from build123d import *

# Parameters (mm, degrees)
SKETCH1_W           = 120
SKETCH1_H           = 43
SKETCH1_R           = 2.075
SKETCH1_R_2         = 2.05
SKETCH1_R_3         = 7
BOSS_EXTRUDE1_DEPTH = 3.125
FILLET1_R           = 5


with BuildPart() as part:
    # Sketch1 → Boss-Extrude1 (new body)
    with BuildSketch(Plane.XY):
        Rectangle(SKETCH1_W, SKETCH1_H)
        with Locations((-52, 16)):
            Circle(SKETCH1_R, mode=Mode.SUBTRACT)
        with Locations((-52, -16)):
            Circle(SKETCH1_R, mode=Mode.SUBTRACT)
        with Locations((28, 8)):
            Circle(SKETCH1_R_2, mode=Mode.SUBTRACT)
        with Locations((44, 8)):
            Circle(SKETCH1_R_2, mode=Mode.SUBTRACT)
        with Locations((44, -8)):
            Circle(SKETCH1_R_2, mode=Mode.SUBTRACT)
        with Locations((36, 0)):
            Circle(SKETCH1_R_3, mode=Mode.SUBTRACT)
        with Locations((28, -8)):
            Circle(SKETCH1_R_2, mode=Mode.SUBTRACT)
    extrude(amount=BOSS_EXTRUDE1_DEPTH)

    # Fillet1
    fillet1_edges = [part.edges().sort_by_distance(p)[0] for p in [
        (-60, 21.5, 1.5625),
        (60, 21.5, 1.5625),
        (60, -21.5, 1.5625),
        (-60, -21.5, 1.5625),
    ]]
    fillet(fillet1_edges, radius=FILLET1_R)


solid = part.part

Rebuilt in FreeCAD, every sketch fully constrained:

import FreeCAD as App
import Part
import Sketcher
Q = App.Units.Quantity


def edges_at(feature, points):
    """Names of the edges that pass closest to the given points."""
    edges = feature.Shape.Edges
    near = lambda p: min(range(len(edges)), key=lambda i: edges[i].distToShape(Part.Vertex(*p))[0])
    return sorted({f"Edge{near(p) + 1}" for p in points})


def add_polygon(sketch, points):
    """Adds a closed chain of lines whose ends are joined by coincident constraints."""
    first, n = sketch.GeometryCount, len(points)
    for a, b in zip(points, points[1:] + points[:1]):
        sketch.addGeometry(Part.LineSegment(App.Vector(*a, 0), App.Vector(*b, 0)), False)
    for i in range(n):
        sketch.addConstraint(Sketcher.Constraint("Coincident", first + i, 2, first + (i + 1) % n, 1))

doc = App.newDocument("Part")
body = doc.addObject("PartDesign::Body", "Body")

sketch1 = body.newObject("Sketcher::SketchObject", "Sketch")
sketch1.AttachmentSupport = (doc.getObject("XY_Plane"), [""])
sketch1.MapMode = "FlatFace"
add_polygon(sketch1, [(-60, 21.5), (-60, -21.5), (60, -21.5), (60, 21.5)])
sketch1.addGeometry(Part.Circle(App.Vector(-52, -16, 0), App.Vector(0, 0, 1), 2.1), False)
sketch1.addGeometry(Part.Circle(App.Vector(28, -8, 0), App.Vector(0, 0, 1), 2), False)
sketch1.addGeometry(Part.Circle(App.Vector(44, -8, 0), App.Vector(0, 0, 1), 2), False)
sketch1.addGeometry(Part.Circle(App.Vector(-52, 16, 0), App.Vector(0, 0, 1), 2.1), False)
sketch1.addGeometry(Part.Circle(App.Vector(36, 0, 0), App.Vector(0, 0, 1), 7), False)
sketch1.addGeometry(Part.Circle(App.Vector(28, 8, 0), App.Vector(0, 0, 1), 2), False)
sketch1.addGeometry(Part.Circle(App.Vector(44, 8, 0), App.Vector(0, 0, 1), 2), False)
sketch1.addConstraint([
    Sketcher.Constraint("Vertical", 0),
    Sketcher.Constraint("Horizontal", 1),
    Sketcher.Constraint("Vertical", 2),
    Sketcher.Constraint("Horizontal", 3),
    Sketcher.Constraint("Equal", 5, 6),
    Sketcher.Constraint("Equal", 4, 7),
    Sketcher.Constraint("Equal", 6, 9),
    Sketcher.Constraint("Equal", 9, 10),
    Sketcher.Constraint("Symmetric", 0, 2, 2, 2, -1, 1),
    Sketcher.Constraint("Symmetric", 4, 3, 7, 3, -1),
    Sketcher.Constraint("Symmetric", 5, 3, 9, 3, -1),
    Sketcher.Constraint("Symmetric", 6, 3, 10, 3, -1),
    Sketcher.Constraint("PointOnObject", 8, 3, -1),
    Sketcher.Constraint("Horizontal", 5, 3, 6, 3),
    Sketcher.Constraint("Diameter", 8, Q("14 mm")),
    Sketcher.Constraint("Diameter", 5, Q("4.1 mm")),
    Sketcher.Constraint("Diameter", 4, Q("4.15 mm")),
    Sketcher.Constraint("DistanceX", 1, 1, 1, 2, Q("120 mm")),
    Sketcher.Constraint("DistanceY", 0, 2, 0, 1, Q("43 mm")),
    Sketcher.Constraint("DistanceX", 4, 3, -1, 1, Q("52 mm")),
    Sketcher.Constraint("DistanceY", 4, 3, -1, 1, Q("16 mm")),
    Sketcher.Constraint("DistanceX", -1, 1, 5, 3, Q("28 mm")),
    Sketcher.Constraint("DistanceY", 5, 3, -1, 1, Q("8 mm")),
    Sketcher.Constraint("DistanceX", -1, 1, 6, 3, Q("44 mm")),
    Sketcher.Constraint("DistanceX", -1, 1, 8, 3, Q("36 mm")),
])
pad1 = body.newObject("PartDesign::Pad", "Pad")
pad1.Profile = sketch1
pad1.Length = 3.125
doc.recompute()

fillet = body.newObject("PartDesign::Fillet", "Fillet")
fillet.Base = (pad1, edges_at(pad1, [
    (-60, 21.5, 1.562),
    (60, 21.5, 1.562),
    (60, -21.5, 1.562),
    (-60, -21.5, 1.562),
]))
fillet.Radius = 5

doc.recompute()
